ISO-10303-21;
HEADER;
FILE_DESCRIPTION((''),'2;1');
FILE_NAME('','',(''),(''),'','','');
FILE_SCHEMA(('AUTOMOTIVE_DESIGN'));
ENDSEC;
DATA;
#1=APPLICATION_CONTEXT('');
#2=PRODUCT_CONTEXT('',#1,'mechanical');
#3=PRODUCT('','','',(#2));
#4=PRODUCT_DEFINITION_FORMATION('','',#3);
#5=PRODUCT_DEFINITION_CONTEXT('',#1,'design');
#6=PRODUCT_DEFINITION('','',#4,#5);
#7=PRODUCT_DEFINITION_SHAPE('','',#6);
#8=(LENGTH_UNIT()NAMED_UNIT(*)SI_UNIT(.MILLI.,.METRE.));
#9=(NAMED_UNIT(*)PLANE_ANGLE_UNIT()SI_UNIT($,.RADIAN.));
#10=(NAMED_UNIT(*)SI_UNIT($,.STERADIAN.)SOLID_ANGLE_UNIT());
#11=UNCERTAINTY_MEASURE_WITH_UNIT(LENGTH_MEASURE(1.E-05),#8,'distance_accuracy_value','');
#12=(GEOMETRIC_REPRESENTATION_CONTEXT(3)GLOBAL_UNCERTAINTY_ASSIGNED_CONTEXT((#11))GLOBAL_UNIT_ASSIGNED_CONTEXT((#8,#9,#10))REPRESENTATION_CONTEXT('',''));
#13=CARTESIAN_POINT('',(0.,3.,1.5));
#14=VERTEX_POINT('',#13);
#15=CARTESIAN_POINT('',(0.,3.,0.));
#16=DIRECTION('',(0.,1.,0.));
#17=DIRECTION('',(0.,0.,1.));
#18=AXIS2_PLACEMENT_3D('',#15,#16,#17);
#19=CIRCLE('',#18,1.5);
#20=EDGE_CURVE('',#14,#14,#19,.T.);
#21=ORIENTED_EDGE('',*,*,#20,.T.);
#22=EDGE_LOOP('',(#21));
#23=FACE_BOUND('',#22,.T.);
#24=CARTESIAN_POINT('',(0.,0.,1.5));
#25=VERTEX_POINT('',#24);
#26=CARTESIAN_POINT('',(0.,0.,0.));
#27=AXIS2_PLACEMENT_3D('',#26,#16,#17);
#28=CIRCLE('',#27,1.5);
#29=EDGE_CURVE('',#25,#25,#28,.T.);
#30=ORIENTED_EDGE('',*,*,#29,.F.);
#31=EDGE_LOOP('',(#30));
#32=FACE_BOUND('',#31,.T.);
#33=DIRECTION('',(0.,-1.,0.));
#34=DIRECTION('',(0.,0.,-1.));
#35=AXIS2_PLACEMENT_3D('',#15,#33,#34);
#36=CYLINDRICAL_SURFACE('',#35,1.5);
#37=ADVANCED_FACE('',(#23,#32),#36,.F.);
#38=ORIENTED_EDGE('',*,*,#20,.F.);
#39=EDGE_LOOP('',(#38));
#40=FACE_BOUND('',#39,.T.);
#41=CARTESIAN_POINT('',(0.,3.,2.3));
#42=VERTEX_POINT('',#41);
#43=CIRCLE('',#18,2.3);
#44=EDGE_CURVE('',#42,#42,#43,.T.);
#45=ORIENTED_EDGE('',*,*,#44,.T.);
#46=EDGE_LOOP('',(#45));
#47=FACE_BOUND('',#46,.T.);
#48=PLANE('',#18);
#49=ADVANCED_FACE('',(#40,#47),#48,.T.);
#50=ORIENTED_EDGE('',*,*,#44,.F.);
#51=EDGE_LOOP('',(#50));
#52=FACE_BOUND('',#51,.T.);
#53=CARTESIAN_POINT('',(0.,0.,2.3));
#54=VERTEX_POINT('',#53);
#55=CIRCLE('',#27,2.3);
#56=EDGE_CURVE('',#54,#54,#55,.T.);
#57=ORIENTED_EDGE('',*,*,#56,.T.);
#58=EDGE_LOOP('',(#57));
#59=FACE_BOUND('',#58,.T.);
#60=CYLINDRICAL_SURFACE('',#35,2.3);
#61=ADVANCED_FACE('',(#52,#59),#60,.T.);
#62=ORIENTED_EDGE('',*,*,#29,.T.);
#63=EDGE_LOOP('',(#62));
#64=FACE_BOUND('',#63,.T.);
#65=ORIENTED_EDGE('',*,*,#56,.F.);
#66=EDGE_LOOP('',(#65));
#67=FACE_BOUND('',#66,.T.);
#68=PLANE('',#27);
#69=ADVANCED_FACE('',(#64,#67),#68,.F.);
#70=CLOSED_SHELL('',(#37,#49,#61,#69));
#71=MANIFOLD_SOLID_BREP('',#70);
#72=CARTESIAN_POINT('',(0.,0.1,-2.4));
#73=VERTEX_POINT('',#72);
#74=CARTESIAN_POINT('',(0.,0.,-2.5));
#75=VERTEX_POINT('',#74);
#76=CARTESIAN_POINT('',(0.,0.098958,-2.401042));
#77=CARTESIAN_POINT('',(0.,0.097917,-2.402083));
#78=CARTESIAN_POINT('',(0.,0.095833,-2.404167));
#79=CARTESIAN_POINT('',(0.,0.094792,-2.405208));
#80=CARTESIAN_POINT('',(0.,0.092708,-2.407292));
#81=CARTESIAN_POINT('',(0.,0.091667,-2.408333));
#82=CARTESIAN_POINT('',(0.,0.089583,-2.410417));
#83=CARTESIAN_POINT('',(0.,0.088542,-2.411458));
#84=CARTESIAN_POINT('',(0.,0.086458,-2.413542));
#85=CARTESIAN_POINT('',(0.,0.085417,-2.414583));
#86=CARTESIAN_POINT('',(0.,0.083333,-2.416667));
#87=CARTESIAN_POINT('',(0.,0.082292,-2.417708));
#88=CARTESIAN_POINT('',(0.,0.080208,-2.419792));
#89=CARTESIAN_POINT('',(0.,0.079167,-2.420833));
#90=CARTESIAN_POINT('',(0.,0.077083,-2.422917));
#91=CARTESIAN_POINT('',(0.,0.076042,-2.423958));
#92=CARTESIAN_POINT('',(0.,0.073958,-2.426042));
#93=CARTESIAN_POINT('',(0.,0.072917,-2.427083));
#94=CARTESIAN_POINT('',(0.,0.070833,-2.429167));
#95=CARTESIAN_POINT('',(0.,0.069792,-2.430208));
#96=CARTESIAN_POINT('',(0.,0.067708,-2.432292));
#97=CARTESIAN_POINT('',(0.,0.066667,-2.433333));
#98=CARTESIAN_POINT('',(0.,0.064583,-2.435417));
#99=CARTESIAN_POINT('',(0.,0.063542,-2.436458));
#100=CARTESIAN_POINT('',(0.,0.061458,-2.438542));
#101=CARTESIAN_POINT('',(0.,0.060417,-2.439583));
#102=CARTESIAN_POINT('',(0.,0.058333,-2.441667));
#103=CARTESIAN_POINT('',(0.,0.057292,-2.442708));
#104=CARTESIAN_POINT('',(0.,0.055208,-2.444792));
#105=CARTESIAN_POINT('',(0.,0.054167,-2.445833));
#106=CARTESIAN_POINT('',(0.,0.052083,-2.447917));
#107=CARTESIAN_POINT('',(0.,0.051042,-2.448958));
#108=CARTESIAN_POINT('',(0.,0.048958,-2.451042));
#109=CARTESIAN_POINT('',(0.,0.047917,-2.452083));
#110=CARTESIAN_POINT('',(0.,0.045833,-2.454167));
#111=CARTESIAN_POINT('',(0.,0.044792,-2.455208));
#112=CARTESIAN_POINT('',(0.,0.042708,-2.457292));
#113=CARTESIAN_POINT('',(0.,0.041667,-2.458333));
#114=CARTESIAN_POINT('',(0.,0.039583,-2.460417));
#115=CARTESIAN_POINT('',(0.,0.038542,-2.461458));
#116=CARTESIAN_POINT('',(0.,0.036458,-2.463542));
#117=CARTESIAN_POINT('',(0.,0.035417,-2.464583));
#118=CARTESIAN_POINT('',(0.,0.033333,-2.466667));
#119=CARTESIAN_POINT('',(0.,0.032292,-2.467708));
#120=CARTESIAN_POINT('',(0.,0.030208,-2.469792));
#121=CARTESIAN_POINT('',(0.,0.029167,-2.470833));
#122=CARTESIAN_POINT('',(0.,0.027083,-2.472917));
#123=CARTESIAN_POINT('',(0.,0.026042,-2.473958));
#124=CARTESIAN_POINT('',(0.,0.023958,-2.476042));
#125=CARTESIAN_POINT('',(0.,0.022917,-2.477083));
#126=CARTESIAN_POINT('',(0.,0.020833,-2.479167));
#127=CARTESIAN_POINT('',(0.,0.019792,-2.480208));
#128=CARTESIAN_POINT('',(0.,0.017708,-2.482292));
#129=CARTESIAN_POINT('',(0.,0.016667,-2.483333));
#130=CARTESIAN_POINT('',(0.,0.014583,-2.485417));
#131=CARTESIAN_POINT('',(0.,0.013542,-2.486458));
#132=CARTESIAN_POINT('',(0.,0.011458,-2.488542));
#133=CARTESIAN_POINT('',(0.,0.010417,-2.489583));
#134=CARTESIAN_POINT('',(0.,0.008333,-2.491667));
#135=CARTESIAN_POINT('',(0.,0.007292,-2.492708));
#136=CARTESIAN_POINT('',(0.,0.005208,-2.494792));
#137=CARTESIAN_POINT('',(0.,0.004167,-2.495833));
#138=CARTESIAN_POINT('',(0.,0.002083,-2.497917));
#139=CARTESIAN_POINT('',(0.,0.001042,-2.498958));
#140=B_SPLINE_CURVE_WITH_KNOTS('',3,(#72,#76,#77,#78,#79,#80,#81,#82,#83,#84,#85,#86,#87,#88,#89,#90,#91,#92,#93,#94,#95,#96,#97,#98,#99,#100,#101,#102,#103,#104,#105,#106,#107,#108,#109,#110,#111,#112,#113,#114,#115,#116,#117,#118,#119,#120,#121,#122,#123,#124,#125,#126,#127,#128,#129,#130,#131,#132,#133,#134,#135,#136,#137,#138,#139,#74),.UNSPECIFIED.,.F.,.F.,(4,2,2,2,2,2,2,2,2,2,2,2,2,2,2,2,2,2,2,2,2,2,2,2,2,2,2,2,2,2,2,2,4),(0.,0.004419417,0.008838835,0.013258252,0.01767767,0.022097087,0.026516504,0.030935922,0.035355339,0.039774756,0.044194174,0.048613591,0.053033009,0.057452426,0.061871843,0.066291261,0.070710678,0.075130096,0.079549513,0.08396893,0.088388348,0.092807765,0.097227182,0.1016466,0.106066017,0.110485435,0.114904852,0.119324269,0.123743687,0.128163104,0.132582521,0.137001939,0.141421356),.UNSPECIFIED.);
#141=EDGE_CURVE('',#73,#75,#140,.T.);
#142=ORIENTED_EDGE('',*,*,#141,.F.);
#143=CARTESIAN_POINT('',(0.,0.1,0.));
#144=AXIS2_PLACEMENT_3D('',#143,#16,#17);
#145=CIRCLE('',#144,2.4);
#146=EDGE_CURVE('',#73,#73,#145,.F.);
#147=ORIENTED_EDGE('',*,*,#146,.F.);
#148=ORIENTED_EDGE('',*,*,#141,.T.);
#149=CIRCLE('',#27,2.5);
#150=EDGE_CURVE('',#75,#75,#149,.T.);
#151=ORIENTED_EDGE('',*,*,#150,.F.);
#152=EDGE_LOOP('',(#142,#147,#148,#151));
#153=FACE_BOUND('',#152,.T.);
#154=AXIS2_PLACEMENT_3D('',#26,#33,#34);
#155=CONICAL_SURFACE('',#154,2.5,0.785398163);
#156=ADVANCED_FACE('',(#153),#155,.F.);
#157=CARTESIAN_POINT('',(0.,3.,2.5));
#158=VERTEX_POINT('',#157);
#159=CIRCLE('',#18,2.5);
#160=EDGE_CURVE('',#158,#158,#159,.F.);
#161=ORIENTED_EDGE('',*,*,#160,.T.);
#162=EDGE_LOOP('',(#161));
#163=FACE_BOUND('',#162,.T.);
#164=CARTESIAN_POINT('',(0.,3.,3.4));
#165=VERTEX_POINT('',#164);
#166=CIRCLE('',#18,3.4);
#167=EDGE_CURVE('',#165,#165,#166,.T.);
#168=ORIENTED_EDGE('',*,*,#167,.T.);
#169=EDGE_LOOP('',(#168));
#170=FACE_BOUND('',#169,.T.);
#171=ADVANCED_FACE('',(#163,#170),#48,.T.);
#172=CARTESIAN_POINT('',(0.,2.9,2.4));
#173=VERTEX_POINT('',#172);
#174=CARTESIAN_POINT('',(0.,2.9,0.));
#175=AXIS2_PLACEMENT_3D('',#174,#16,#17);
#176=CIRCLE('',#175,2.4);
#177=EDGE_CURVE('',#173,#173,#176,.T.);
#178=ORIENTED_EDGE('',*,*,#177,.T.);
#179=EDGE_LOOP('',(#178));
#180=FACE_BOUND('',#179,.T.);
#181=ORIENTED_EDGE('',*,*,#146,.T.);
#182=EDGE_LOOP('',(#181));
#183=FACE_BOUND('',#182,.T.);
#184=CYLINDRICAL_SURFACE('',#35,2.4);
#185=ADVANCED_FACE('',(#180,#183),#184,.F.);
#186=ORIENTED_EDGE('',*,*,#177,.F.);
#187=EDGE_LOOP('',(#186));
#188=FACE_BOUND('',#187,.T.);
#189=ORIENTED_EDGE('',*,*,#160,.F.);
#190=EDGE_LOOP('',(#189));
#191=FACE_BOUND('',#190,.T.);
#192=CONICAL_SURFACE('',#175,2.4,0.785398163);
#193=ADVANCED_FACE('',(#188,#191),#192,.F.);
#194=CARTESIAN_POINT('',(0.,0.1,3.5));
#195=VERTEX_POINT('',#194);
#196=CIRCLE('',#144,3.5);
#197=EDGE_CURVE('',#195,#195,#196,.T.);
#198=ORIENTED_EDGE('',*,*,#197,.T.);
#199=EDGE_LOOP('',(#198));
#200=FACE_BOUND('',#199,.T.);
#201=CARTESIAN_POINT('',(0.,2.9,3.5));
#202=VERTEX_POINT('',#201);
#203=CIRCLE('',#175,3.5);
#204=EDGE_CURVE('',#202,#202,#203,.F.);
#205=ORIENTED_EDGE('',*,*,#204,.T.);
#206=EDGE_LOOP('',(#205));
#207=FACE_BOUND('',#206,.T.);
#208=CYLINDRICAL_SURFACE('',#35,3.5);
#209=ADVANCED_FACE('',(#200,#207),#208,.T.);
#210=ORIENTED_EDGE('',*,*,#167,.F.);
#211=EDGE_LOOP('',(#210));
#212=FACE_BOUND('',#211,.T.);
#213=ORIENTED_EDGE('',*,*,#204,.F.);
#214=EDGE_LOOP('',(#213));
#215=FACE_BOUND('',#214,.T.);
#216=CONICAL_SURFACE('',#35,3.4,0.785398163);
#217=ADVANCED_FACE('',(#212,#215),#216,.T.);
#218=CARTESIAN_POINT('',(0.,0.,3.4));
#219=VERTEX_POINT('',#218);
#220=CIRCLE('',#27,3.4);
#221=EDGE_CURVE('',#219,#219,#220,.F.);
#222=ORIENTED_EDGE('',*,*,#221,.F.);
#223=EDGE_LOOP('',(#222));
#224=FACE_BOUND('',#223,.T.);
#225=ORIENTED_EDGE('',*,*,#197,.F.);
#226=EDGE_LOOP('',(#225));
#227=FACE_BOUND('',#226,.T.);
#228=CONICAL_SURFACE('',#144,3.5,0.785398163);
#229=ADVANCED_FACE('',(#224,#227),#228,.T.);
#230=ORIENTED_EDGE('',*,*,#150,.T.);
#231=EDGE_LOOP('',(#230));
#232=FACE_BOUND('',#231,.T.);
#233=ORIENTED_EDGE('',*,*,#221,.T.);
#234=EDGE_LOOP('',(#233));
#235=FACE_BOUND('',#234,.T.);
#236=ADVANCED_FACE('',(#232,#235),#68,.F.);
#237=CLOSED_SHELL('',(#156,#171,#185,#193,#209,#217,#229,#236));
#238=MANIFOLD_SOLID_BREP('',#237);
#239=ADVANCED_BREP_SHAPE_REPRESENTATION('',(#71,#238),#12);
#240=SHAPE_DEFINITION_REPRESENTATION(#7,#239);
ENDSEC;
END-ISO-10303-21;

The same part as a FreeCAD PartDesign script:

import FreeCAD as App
import Part
import Sketcher
Q = App.Units.Quantity


def edges_at(feature, points):
    """Names of the edges that pass closest to the given points."""
    edges = feature.Shape.Edges
    near = lambda p: min(range(len(edges)), key=lambda i: edges[i].distToShape(Part.Vertex(*p))[0])
    return sorted({f"Edge{near(p) + 1}" for p in points})

doc = App.newDocument("Part")
body = doc.addObject("PartDesign::Body", "Body")

sketch1 = body.newObject("Sketcher::SketchObject", "Sketch")
sketch1.AttachmentSupport = (doc.getObject("XZ_Plane"), [""])
sketch1.MapMode = "FlatFace"
sketch1.addGeometry(Part.Circle(App.Vector(0, 0, 0), App.Vector(0, 0, 1), 3.5), False)
sketch1.addGeometry(Part.Circle(App.Vector(0, 0, 0), App.Vector(0, 0, 1), 2.4), False)
sketch1.addConstraint(Sketcher.Constraint("Coincident", 0, 3, -1, 1))
sketch1.addConstraint(Sketcher.Constraint("Coincident", 1, 3, -1, 1))
sketch1.addConstraint(Sketcher.Constraint("Diameter", 0, Q("7 mm")))
sketch1.addConstraint(Sketcher.Constraint("Diameter", 1, Q("4.8 mm")))
pad1 = body.newObject("PartDesign::Pad", "Pad")
pad1.Profile = sketch1
pad1.Length = 3
pad1.Reversed = True
doc.recompute()

chamfer = body.newObject("PartDesign::Chamfer", "Chamfer")
chamfer.Base = (pad1, edges_at(pad1, [
    (0, 0, -3.5),
    (0, 0, -2.4),
    (0, 3, -2.4),
    (0, 3, -3.5),
]))
chamfer.Size = 0.1
body2 = doc.addObject("PartDesign::Body", "Body001")

sketch2 = body2.newObject("Sketcher::SketchObject", "Sketch001")
sketch2.AttachmentSupport = (doc.getObject("XZ_Plane001"), [""])
sketch2.MapMode = "FlatFace"
sketch2.addGeometry(Part.Circle(App.Vector(0, 0, 0), App.Vector(0, 0, 1), 2.3), False)
sketch2.addGeometry(Part.Circle(App.Vector(0, 0, 0), App.Vector(0, 0, 1), 1.5), False)
sketch2.addConstraint(Sketcher.Constraint("Coincident", 0, 3, -1, 1))
sketch2.addConstraint(Sketcher.Constraint("Coincident", 1, 3, -1, 1))
sketch2.addConstraint(Sketcher.Constraint("Diameter", 1, Q("3 mm")))
sketch2.addConstraint(Sketcher.Constraint("Diameter", 0, Q("4.6 mm")))
pad2 = body2.newObject("PartDesign::Pad", "Pad001")
pad2.Profile = sketch2
pad2.Length = 3
pad2.Reversed = True

doc.recompute()
